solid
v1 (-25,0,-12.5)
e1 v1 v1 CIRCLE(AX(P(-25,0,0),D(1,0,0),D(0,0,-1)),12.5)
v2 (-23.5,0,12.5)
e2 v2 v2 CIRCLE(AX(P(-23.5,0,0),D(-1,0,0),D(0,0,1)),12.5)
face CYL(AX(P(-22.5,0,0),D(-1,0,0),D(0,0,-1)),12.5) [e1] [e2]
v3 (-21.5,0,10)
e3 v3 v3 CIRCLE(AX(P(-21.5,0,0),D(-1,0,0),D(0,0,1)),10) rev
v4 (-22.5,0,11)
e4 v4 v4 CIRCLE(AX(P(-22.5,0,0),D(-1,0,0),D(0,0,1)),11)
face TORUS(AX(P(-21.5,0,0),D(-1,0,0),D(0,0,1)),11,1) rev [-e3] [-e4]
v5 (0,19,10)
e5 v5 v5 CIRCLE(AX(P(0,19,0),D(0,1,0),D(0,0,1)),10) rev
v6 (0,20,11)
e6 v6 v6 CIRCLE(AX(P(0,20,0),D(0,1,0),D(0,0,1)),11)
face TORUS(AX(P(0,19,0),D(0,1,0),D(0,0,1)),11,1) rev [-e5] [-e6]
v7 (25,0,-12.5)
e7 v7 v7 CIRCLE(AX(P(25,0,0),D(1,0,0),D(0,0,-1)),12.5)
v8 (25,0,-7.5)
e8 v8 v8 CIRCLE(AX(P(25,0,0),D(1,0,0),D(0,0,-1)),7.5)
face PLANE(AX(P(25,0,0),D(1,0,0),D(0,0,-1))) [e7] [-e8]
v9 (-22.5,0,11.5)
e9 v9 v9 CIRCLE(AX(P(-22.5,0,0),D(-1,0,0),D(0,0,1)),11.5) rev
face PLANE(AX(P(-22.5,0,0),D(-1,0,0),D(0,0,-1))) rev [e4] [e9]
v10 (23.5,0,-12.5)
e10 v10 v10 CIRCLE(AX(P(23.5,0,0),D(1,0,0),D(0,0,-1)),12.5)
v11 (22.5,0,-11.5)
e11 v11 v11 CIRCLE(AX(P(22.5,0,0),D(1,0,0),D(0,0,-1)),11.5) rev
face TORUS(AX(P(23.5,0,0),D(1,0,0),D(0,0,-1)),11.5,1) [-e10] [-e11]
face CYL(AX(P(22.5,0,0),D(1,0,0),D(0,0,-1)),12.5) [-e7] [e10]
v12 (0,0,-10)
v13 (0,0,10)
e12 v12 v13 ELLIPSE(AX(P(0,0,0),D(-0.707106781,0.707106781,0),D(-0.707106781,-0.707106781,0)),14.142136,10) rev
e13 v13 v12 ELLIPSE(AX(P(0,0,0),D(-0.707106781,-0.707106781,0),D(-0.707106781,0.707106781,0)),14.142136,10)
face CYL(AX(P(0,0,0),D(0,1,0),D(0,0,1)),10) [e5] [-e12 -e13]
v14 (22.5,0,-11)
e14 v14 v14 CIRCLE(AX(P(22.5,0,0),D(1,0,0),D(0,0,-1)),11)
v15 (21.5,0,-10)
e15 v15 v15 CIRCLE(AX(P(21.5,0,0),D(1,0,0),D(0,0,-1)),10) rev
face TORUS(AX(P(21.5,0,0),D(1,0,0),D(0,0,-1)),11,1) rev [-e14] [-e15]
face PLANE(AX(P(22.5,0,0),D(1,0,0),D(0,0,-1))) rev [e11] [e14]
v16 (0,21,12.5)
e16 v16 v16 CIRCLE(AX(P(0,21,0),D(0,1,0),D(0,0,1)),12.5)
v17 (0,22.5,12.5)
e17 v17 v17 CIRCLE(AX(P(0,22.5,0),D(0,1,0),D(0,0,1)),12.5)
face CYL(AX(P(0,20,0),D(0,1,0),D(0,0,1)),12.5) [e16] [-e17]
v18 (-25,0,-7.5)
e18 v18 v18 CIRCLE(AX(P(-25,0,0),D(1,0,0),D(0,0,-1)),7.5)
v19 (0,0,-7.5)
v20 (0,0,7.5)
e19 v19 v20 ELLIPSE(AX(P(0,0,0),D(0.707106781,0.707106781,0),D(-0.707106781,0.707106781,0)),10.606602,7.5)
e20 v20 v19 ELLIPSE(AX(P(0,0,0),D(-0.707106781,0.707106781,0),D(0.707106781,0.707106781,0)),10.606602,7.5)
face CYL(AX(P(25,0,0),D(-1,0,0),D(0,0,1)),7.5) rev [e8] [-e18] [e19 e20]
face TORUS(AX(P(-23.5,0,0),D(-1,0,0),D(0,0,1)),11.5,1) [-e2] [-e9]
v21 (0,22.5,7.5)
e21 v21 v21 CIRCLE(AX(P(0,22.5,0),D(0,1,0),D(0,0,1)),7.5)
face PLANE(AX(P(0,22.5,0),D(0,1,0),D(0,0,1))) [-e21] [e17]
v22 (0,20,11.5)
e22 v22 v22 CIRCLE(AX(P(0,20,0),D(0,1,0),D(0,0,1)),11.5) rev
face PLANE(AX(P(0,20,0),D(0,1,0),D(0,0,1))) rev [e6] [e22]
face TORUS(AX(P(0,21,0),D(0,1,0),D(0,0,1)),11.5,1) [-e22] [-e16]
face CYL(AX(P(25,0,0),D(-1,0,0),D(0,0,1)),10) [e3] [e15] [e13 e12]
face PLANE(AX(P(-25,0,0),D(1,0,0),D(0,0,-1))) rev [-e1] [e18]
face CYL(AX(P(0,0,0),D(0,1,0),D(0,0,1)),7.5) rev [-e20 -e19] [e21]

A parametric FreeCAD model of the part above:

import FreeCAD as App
import Part
import Sketcher
Q = App.Units.Quantity


def edges_at(feature, points):
    """Names of the edges that pass closest to the given points."""
    edges = feature.Shape.Edges
    near = lambda p: min(range(len(edges)), key=lambda i: edges[i].distToShape(Part.Vertex(*p))[0])
    return sorted({f"Edge{near(p) + 1}" for p in points})

doc = App.newDocument("Part")
body = doc.addObject("PartDesign::Body", "Body")

sketch1 = body.newObject("Sketcher::SketchObject", "Sketch")
sketch1.AttachmentSupport = (doc.getObject("YZ_Plane"), [""])
sketch1.MapMode = "FlatFace"
sketch1.addGeometry([
    Part.Circle(App.Vector(0, 0, 0), App.Vector(0, 0, 1), 10),
    Part.Circle(App.Vector(0, 0, 0), App.Vector(0, 0, 1), 8),
], False)
sketch1.addConstraint([
    Sketcher.Constraint("Coincident", 0, 3, -1, 1),
    Sketcher.Constraint("Coincident", 1, 3, -1, 1),
    Sketcher.Constraint("Diameter", 0, Q("20 mm")),
    Sketcher.Constraint("Diameter", 1, Q("15 mm")),
])

sketch2 = body.newObject("Sketcher::SketchObject", "Sketch001")
sketch2.AttachmentSupport = (doc.getObject("XY_Plane"), [""])
sketch2.MapMode = "FlatFace"
sketch2.addGeometry(Part.LineSegment(App.Vector(-25, 0, 0), App.Vector(25, 0, 0)), False)
sketch2.addConstraint([
    Sketcher.Constraint("Horizontal", 0),
    Sketcher.Constraint("Symmetric", 0, 1, 0, 2, -1, 1),
    Sketcher.Constraint("DistanceX", 0, 1, 0, 2, Q("50 mm")),
])
doc.recompute()

additivepipe = body.newObject("PartDesign::AdditivePipe", "AdditivePipe")
additivepipe.Profile = sketch1
additivepipe.Spine = (sketch2, ["Edge1"])

sketch3 = body.newObject("Sketcher::SketchObject", "Sketch002")
sketch3.AttachmentSupport = (doc.getObject("YZ_Plane"), [""])
sketch3.MapMode = "FlatFace"
sketch3.AttachmentOffset = App.Placement(App.Vector(0, 0, 25), App.Rotation())
sketch3.addGeometry([
    Part.Circle(App.Vector(0, 0, 0), App.Vector(0, 0, 1), 12),
    Part.Circle(App.Vector(0, 0, 0), App.Vector(0, 0, 1), 8),
], False)
sketch3.addConstraint([
    Sketcher.Constraint("Coincident", 0, 3, -1, 1),
    Sketcher.Constraint("Coincident", 1, 3, -1, 1),
    Sketcher.Constraint("Diameter", 0, Q("25 mm")),
    Sketcher.Constraint("Diameter", 1, Q("15 mm")),
])
pad1 = body.newObject("PartDesign::Pad", "Pad")
pad1.Profile = sketch3
pad1.Length = 2.5
pad1.Reversed = True
body2 = doc.addObject("PartDesign::Body", "Body001")
doc.recompute()

body2.BaseFeature = body
doc.recompute()

mirroring = doc.addObject("Part::Mirroring", "Mirroring")
mirroring.Source = body
mirroring.Base = App.Vector(0, 0, 0)
mirroring.Normal = App.Vector(1, 0, 0)
body3 = doc.addObject("PartDesign::Body", "Body002")
body3.BaseFeature = mirroring
boolean = body2.newObject("PartDesign::Boolean", "Boolean")
boolean.Type = "Fuse"
boolean.addObjects([body3])
doc.recompute()

sketch4 = body2.newObject("Sketcher::SketchObject", "Sketch003")
sketch4.AttachmentSupport = (doc.getObject("XZ_Plane001"), [""])
sketch4.MapMode = "FlatFace"
sketch4.AttachmentOffset = App.Placement(App.Vector(0, 0, -7.5), App.Rotation())
sketch4.addGeometry([
    Part.Circle(App.Vector(0, 0, 0), App.Vector(0, 0, 1), 10),
    Part.Circle(App.Vector(0, 0, 0), App.Vector(0, 0, 1), 8),
], False)
sketch4.addConstraint([
    Sketcher.Constraint("Coincident", 0, 3, -1, 1),
    Sketcher.Constraint("Coincident", 1, 3, -1, 1),
    Sketcher.Constraint("Diameter", 0, Q("20 mm")),
    Sketcher.Constraint("Diameter", 1, Q("15 mm")),
])
pad2 = body2.newObject("PartDesign::Pad", "Pad001")
pad2.Profile = sketch4
pad2.Type = "TwoLengths"
pad2.Length = 15
pad2.Length2 = 7.5
pad2.Reversed = True

sketch5 = body2.newObject("Sketcher::SketchObject", "Sketch004")
sketch5.AttachmentSupport = (doc.getObject("YZ_Plane001"), [""])
sketch5.MapMode = "FlatFace"
sketch5.AttachmentOffset = App.Placement(App.Vector(0, 0, 25), App.Rotation())
sketch5.addGeometry(Part.Circle(App.Vector(0, 0, 0), App.Vector(0, 0, 1), 8), False)
sketch5.addConstraint([
    Sketcher.Constraint("Coincident", 0, 3, -1, 1),
    Sketcher.Constraint("Diameter", 0, Q("15 mm")),
])
pocket1 = body2.newObject("PartDesign::Pocket", "Pocket")
pocket1.Profile = sketch5
pocket1.Type = "ThroughAll"

sketch6 = body2.newObject("Sketcher::SketchObject", "Sketch005")
sketch6.AttachmentSupport = (doc.getObject("XZ_Plane001"), [""])
sketch6.MapMode = "FlatFace"
sketch6.AttachmentOffset = App.Placement(App.Vector(0, 0, -22.5), App.Rotation())
sketch6.addGeometry(Part.Circle(App.Vector(0, 0, 0), App.Vector(0, 0, 1), 8), False)
sketch6.addConstraint([
    Sketcher.Constraint("Coincident", 0, 3, -1, 1),
    Sketcher.Constraint("Diameter", 0, Q("15 mm")),
])
pocket2 = body2.newObject("PartDesign::Pocket", "Pocket001")
pocket2.Profile = sketch6
pocket2.Length = 22.5
pocket2.Reversed = True

sketch7 = body2.newObject("Sketcher::SketchObject", "Sketch006")
sketch7.AttachmentSupport = (doc.getObject("XZ_Plane001"), [""])
sketch7.MapMode = "FlatFace"
sketch7.AttachmentOffset = App.Placement(App.Vector(0, 0, -22.5), App.Rotation())
sketch7.addGeometry([
    Part.Circle(App.Vector(0, 0, 0), App.Vector(0, 0, 1), 12),
    Part.Circle(App.Vector(0, 0, 0), App.Vector(0, 0, 1), 8),
], False)
sketch7.addConstraint([
    Sketcher.Constraint("Coincident", 0, 3, -1, 1),
    Sketcher.Constraint("Coincident", 1, 3, -1, 1),
    Sketcher.Constraint("Diameter", 0, Q("25 mm")),
    Sketcher.Constraint("Diameter", 1, Q("15 mm")),
])
pad3 = body2.newObject("PartDesign::Pad", "Pad002")
pad3.Profile = sketch7
pad3.Length = 2.5
doc.recompute()

fillet = body2.newObject("PartDesign::Fillet", "Fillet")
fillet.Base = (pad3, edges_at(pad3, [
    (22.5, 0, 10),
    (22.5, 0, 12.5),
    (-22.5, 0, 10),
    (-22.5, 0, 12.5),
    (0, 20, -10),
    (0, 20, -12.5),
]))
fillet.Radius = 1
mirroring.Visibility = False

doc.recompute()
